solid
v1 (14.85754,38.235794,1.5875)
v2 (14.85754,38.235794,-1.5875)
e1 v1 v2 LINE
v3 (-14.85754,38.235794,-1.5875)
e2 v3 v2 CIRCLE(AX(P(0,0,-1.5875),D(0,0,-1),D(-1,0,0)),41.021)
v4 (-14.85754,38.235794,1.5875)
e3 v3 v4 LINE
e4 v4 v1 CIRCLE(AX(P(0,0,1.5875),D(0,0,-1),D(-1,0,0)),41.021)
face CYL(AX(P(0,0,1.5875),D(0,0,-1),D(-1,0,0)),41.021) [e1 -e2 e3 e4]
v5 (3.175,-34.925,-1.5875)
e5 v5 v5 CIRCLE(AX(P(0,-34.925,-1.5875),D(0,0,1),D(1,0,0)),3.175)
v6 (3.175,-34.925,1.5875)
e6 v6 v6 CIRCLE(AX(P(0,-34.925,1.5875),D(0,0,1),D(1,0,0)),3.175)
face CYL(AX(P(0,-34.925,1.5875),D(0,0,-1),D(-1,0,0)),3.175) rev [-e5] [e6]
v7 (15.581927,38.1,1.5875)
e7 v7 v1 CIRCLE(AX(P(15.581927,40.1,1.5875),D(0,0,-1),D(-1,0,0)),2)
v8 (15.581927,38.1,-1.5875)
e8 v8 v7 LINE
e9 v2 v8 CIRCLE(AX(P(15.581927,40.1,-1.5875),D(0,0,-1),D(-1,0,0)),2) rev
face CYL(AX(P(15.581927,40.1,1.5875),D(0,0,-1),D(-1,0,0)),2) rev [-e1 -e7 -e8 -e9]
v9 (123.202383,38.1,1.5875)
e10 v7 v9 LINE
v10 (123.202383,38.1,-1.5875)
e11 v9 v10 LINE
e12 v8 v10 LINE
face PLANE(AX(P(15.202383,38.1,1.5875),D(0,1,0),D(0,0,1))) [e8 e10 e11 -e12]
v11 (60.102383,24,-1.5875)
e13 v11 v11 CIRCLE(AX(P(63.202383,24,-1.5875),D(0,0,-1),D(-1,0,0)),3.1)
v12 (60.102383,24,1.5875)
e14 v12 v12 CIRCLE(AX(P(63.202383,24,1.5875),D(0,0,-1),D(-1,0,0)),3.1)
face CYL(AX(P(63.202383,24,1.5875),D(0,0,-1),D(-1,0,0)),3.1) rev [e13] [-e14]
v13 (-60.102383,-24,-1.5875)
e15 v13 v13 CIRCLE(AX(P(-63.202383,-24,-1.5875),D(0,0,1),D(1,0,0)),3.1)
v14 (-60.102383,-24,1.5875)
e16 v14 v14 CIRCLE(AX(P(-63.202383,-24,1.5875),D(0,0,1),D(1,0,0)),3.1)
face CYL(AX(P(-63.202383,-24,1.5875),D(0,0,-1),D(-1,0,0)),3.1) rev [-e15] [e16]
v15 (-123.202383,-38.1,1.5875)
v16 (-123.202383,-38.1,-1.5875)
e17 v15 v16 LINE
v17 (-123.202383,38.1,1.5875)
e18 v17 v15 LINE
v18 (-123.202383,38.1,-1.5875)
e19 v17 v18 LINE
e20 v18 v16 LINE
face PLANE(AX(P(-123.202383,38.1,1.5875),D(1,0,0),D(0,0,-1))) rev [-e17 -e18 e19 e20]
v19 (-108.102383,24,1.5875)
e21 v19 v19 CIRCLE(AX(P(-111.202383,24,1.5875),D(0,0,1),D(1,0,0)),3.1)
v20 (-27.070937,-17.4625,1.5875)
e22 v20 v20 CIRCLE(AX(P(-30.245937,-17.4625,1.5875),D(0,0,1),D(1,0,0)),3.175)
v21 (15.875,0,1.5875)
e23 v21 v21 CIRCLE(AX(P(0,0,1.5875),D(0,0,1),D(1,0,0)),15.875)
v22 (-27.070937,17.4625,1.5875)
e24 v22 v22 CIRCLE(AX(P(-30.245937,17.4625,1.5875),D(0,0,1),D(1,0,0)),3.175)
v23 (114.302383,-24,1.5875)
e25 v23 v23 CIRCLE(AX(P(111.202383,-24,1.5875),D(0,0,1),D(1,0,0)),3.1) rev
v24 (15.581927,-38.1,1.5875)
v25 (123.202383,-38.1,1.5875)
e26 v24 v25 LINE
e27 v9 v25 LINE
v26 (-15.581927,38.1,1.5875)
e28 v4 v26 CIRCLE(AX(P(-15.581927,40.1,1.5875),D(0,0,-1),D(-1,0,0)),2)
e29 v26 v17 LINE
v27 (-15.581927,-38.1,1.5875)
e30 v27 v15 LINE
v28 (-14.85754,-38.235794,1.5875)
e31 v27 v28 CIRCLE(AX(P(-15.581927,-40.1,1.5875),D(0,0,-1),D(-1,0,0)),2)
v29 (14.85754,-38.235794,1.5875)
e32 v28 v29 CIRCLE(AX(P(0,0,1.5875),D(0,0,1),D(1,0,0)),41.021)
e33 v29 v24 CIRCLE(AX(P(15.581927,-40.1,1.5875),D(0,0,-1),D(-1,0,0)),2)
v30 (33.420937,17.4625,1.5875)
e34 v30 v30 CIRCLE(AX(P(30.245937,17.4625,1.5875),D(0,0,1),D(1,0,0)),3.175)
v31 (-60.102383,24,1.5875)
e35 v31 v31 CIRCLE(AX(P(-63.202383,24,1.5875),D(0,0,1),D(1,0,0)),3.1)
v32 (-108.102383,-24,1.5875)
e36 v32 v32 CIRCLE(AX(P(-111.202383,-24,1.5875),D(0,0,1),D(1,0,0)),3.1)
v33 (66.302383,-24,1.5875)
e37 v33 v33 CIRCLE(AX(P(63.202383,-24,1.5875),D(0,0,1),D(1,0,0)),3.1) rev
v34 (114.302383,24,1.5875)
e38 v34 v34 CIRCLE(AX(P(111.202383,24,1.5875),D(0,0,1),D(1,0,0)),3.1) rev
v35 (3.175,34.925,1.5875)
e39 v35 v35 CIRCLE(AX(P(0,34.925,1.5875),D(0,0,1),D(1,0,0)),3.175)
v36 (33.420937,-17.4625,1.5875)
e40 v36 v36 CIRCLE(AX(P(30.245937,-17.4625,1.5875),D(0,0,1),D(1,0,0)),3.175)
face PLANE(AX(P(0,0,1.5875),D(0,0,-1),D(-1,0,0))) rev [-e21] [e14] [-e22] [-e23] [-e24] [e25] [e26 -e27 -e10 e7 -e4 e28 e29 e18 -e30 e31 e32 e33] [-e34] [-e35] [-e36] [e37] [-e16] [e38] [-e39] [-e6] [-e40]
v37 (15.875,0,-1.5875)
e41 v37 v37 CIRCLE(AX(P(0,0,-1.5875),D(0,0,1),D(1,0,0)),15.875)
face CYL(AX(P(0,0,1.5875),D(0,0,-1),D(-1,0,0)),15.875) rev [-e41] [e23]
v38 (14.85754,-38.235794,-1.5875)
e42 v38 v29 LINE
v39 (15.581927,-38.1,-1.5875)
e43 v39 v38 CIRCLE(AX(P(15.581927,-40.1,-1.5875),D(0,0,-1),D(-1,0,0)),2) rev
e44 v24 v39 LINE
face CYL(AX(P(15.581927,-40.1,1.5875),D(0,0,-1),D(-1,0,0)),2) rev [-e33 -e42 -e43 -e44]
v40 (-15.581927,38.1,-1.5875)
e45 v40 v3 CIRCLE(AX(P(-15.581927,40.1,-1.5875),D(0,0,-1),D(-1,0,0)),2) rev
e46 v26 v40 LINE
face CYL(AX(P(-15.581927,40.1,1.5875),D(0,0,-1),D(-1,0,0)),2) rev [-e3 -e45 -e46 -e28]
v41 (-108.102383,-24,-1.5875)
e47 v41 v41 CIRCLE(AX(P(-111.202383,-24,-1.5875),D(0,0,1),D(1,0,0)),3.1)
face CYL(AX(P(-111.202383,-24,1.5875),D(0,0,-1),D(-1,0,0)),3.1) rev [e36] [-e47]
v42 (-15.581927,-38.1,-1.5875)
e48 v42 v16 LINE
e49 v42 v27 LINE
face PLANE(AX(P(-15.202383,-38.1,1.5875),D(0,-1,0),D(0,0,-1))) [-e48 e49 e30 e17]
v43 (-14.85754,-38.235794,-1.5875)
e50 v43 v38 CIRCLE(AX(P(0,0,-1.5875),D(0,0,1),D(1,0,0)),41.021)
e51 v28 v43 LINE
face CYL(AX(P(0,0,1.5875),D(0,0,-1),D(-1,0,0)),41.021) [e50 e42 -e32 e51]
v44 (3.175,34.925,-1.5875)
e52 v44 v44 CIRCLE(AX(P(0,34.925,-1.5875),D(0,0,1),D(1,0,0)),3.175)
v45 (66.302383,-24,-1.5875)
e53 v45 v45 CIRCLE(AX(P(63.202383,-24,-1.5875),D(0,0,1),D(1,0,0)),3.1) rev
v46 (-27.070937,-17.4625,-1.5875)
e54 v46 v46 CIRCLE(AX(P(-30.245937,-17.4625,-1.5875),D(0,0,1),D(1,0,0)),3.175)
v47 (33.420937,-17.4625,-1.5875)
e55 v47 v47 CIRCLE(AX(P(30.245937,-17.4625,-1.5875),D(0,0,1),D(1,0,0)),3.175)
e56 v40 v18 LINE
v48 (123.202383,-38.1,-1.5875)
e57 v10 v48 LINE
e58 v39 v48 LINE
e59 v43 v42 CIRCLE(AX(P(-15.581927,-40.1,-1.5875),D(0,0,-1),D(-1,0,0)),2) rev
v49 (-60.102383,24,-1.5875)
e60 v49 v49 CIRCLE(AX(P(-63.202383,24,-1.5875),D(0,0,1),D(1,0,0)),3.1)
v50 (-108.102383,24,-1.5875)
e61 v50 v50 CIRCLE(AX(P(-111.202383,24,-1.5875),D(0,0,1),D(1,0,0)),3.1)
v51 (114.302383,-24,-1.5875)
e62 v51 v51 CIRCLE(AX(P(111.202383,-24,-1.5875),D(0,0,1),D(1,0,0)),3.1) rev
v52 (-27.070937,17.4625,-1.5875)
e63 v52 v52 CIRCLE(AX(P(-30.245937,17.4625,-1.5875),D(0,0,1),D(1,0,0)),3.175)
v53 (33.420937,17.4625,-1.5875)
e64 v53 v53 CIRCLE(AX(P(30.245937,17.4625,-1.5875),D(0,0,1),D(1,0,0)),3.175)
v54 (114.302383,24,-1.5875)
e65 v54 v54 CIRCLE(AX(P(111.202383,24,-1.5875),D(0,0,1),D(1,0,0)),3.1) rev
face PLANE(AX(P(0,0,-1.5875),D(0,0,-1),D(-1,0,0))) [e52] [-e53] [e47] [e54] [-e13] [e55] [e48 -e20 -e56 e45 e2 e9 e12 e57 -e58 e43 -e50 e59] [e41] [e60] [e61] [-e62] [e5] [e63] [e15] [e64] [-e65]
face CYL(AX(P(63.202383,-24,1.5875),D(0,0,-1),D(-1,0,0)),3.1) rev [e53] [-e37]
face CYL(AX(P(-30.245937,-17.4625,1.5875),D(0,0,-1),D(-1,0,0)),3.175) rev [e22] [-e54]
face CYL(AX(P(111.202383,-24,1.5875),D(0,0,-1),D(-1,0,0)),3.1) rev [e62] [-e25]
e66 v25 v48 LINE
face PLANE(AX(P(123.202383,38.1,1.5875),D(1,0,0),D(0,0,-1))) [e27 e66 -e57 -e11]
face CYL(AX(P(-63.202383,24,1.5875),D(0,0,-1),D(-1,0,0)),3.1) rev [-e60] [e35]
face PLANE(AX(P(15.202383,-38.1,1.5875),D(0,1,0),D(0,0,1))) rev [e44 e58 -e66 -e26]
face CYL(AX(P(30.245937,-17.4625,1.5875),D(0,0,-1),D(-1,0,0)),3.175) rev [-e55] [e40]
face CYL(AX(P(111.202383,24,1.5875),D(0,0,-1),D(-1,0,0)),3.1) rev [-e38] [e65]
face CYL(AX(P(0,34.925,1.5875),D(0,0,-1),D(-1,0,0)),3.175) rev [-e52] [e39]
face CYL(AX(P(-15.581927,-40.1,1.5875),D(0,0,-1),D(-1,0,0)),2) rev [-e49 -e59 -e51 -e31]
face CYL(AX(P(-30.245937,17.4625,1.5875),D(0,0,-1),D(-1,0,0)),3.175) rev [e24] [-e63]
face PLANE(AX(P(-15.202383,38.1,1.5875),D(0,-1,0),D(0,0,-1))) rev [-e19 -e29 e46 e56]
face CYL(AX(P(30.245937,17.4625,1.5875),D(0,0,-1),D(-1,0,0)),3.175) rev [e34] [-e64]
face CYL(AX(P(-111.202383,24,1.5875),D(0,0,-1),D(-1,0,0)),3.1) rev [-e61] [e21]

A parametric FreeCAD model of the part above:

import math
import FreeCAD as App
import Part
import Sketcher
Q = App.Units.Quantity


def edges_at(feature, points):
    """Names of the edges that pass closest to the given points."""
    edges = feature.Shape.Edges
    near = lambda p: min(range(len(edges)), key=lambda i: edges[i].distToShape(Part.Vertex(*p))[0])
    return sorted({f"Edge{near(p) + 1}" for p in points})

doc = App.newDocument("Part")
body = doc.addObject("PartDesign::Body", "Body")

# Sketch on XY plane
sketch1 = body.newObject("Sketcher::SketchObject", "Sketch")
sketch1.AttachmentSupport = (doc.getObject("XY_Plane"), [""])
sketch1.MapMode = "FlatFace"
sketch1.addGeometry(Part.LineSegment(App.Vector(-15.2, 38.1, 0), App.Vector(-123.2, 38.1, 0)), False)
sketch1.addGeometry(Part.LineSegment(App.Vector(-123.2, 38.1, 0), App.Vector(-123.2, -38.1, 0)), False)
sketch1.addGeometry(Part.LineSegment(App.Vector(-123.2, -38.1, 0), App.Vector(-15.2, -38.1, 0)), False)
sketch1.addGeometry(Part.ArcOfCircle(Part.Circle(App.Vector(0, 0, 0), App.Vector(0, 0, 1), 41), math.radians(-112), math.radians(-68)), False)
sketch1.addGeometry(Part.LineSegment(App.Vector(15.2, -38.1, 0), App.Vector(123.2, -38.1, 0)), False)
sketch1.addGeometry(Part.LineSegment(App.Vector(123.2, -38.1, 0), App.Vector(123.2, 38.1, 0)), False)
sketch1.addGeometry(Part.LineSegment(App.Vector(123.2, 38.1, 0), App.Vector(15.2, 38.1, 0)), False)
sketch1.addGeometry(Part.ArcOfCircle(Part.Circle(App.Vector(0, 0, 0), App.Vector(0, 0, 1), 41), math.radians(68), math.radians(112)), False)
sketch1.addGeometry(Part.Circle(App.Vector(-111.2, -24, 0), App.Vector(0, 0, 1), 3.1), False)
sketch1.addGeometry(Part.Circle(App.Vector(-63.2, -24, 0), App.Vector(0, 0, 1), 3.1), False)
sketch1.addGeometry(Part.Circle(App.Vector(-30.2, -17.5, 0), App.Vector(0, 0, 1), 3.2), False)
sketch1.addGeometry(Part.Circle(App.Vector(0, -34.9, 0), App.Vector(0, 0, 1), 3.2), False)
sketch1.addGeometry(Part.Circle(App.Vector(63.2, -24, 0), App.Vector(0, 0, 1), 3.1), False)
sketch1.addGeometry(Part.Circle(App.Vector(111.2, -24, 0), App.Vector(0, 0, 1), 3.1), False)
sketch1.addGeometry(Part.Circle(App.Vector(30.2, -17.5, 0), App.Vector(0, 0, 1), 3.2), False)
sketch1.addGeometry(Part.Circle(App.Vector(-30.2, 17.5, 0), App.Vector(0, 0, 1), 3.2), False)
sketch1.addGeometry(Part.Circle(App.Vector(-111.2, 24, 0), App.Vector(0, 0, 1), 3.1), False)
sketch1.addGeometry(Part.Circle(App.Vector(-63.2, 24, 0), App.Vector(0, 0, 1), 3.1), False)
sketch1.addGeometry(Part.Circle(App.Vector(0, 0, 0), App.Vector(0, 0, 1), 15.9), False)
sketch1.addGeometry(Part.Circle(App.Vector(30.2, 17.5, 0), App.Vector(0, 0, 1), 3.2), False)
sketch1.addGeometry(Part.Circle(App.Vector(0, 34.9, 0), App.Vector(0, 0, 1), 3.2), False)
sketch1.addGeometry(Part.Circle(App.Vector(63.2, 24, 0), App.Vector(0, 0, 1), 3.1), False)
sketch1.addGeometry(Part.Circle(App.Vector(111.2, 24, 0), App.Vector(0, 0, 1), 3.1), False)
sketch1.addConstraint(Sketcher.Constraint("Coincident", 0, 2, 1, 1))
sketch1.addConstraint(Sketcher.Constraint("Coincident", 1, 2, 2, 1))
sketch1.addConstraint(Sketcher.Constraint("Coincident", 2, 2, 3, 1))
sketch1.addConstraint(Sketcher.Constraint("Coincident", 3, 2, 4, 1))
sketch1.addConstraint(Sketcher.Constraint("Coincident", 4, 2, 5, 1))
sketch1.addConstraint(Sketcher.Constraint("Coincident", 5, 2, 6, 1))
sketch1.addConstraint(Sketcher.Constraint("Coincident", 6, 2, 7, 1))
sketch1.addConstraint(Sketcher.Constraint("Coincident", 7, 2, 0, 1))
sketch1.addConstraint(Sketcher.Constraint("Horizontal", 0))
sketch1.addConstraint(Sketcher.Constraint("Vertical", 1))
sketch1.addConstraint(Sketcher.Constraint("Horizontal", 2))
sketch1.addConstraint(Sketcher.Constraint("Horizontal", 4))
sketch1.addConstraint(Sketcher.Constraint("Vertical", 5))
sketch1.addConstraint(Sketcher.Constraint("Horizontal", 6))
sketch1.addConstraint(Sketcher.Constraint("Coincident", 3, 3, -1, 1))
sketch1.addConstraint(Sketcher.Constraint("Coincident", 7, 3, -1, 1))
sketch1.addConstraint(Sketcher.Constraint("Coincident", 18, 3, -1, 1))
sketch1.addConstraint(Sketcher.Constraint("Equal", 3, 7))
sketch1.addConstraint(Sketcher.Constraint("Equal", 8, 9))
sketch1.addConstraint(Sketcher.Constraint("Equal", 10, 11))
sketch1.addConstraint(Sketcher.Constraint("Equal", 9, 12))
sketch1.addConstraint(Sketcher.Constraint("Equal", 12, 13))
sketch1.addConstraint(Sketcher.Constraint("Equal", 11, 14))
sketch1.addConstraint(Sketcher.Constraint("Equal", 14, 15))
sketch1.addConstraint(Sketcher.Constraint("Equal", 13, 16))
sketch1.addConstraint(Sketcher.Constraint("Equal", 16, 17))
sketch1.addConstraint(Sketcher.Constraint("Equal", 15, 19))
sketch1.addConstraint(Sketcher.Constraint("Equal", 19, 20))
sketch1.addConstraint(Sketcher.Constraint("Equal", 17, 21))
sketch1.addConstraint(Sketcher.Constraint("Equal", 21, 22))
sketch1.addConstraint(Sketcher.Constraint("Symmetric", 14, 3, 15, 3, -1, 1))
sketch1.addConstraint(Sketcher.Constraint("Symmetric", 13, 3, 16, 3, -1, 1))
sketch1.addConstraint(Sketcher.Constraint("Symmetric", 12, 3, 17, 3, -1, 1))
sketch1.addConstraint(Sketcher.Constraint("Symmetric", 10, 3, 19, 3, -1, 1))
sketch1.addConstraint(Sketcher.Constraint("Symmetric", 11, 3, 20, 3, -1, 1))
sketch1.addConstraint(Sketcher.Constraint("Symmetric", 9, 3, 21, 3, -1, 1))
sketch1.addConstraint(Sketcher.Constraint("Symmetric", 8, 3, 22, 3, -1, 1))
sketch1.addConstraint(Sketcher.Constraint("Symmetric", 0, 2, 4, 2, -1, 1))
sketch1.addConstraint(Sketcher.Constraint("Symmetric", 9, 3, 12, 3, -2))
sketch1.addConstraint(Sketcher.Constraint("Symmetric", 8, 3, 13, 3, -2))
sketch1.addConstraint(Sketcher.Constraint("Symmetric", 10, 3, 14, 3, -2))
sketch1.addConstraint(Sketcher.Constraint("PointOnObject", 11, 3, -2))
sketch1.addConstraint(Sketcher.Constraint("Horizontal", 8, 3, 9, 3))
sketch1.addConstraint(Sketcher.Constraint("Horizontal", 2, 2, 3, 2))
sketch1.addConstraint(Sketcher.Constraint("Horizontal", 0, 2, 5, 2))
sketch1.addConstraint(Sketcher.Constraint("Diameter", 10, Q("0.25 in")))
sketch1.addConstraint(Sketcher.Constraint("Diameter", 18, Q("1.25 in")))
sketch1.addConstraint(Sketcher.Constraint("DistanceY", 1, 2, 1, 1, Q("3 in")))
sketch1.addConstraint(Sketcher.Constraint("Radius", 3, Q("1.615 in")))
sketch1.addConstraint(Sketcher.Constraint("Diameter", 8, Q("6.2 mm")))
sketch1.addConstraint(Sketcher.Constraint("DistanceY", 10, 3, -1, 1, Q("0.6875 in")))
sketch1.addConstraint(Sketcher.Constraint("DistanceY", 11, 3, -1, 1, Q("1.375 in")))
sketch1.addConstraint(Sketcher.Constraint("DistanceX", 0, 2, 0, 1, Q("108 mm")))
sketch1.addConstraint(Sketcher.Constraint("DistanceY", 8, 3, -1, 1, Q("24 mm")))
sketch1.addConstraint(Sketcher.Constraint("DistanceX", 8, 3, 9, 3, Q("48 mm")))
sketch1.addConstraint(Sketcher.Constraint("DistanceX", 0, 2, 16, 3, Q("12 mm")))
sketch1.addConstraint(Sketcher.Constraint("DistanceX", 10, 3, 12, 3, Q("93.44832 mm")))
pad1 = body.newObject("PartDesign::Pad", "Pad")
pad1.Profile = sketch1
pad1.Length = Q("0.125 in")
pad1.Midplane = True
doc.recompute()

fillet = body.newObject("PartDesign::Fillet", "Fillet")
fillet.Base = (pad1, edges_at(pad1, [
    (-15.202, 38.1, 0),
    (-15.202, -38.1, 0),
    (15.202, -38.1, 0),
    (15.202, 38.1, 0),
]))
fillet.Radius = 2

doc.recompute()
